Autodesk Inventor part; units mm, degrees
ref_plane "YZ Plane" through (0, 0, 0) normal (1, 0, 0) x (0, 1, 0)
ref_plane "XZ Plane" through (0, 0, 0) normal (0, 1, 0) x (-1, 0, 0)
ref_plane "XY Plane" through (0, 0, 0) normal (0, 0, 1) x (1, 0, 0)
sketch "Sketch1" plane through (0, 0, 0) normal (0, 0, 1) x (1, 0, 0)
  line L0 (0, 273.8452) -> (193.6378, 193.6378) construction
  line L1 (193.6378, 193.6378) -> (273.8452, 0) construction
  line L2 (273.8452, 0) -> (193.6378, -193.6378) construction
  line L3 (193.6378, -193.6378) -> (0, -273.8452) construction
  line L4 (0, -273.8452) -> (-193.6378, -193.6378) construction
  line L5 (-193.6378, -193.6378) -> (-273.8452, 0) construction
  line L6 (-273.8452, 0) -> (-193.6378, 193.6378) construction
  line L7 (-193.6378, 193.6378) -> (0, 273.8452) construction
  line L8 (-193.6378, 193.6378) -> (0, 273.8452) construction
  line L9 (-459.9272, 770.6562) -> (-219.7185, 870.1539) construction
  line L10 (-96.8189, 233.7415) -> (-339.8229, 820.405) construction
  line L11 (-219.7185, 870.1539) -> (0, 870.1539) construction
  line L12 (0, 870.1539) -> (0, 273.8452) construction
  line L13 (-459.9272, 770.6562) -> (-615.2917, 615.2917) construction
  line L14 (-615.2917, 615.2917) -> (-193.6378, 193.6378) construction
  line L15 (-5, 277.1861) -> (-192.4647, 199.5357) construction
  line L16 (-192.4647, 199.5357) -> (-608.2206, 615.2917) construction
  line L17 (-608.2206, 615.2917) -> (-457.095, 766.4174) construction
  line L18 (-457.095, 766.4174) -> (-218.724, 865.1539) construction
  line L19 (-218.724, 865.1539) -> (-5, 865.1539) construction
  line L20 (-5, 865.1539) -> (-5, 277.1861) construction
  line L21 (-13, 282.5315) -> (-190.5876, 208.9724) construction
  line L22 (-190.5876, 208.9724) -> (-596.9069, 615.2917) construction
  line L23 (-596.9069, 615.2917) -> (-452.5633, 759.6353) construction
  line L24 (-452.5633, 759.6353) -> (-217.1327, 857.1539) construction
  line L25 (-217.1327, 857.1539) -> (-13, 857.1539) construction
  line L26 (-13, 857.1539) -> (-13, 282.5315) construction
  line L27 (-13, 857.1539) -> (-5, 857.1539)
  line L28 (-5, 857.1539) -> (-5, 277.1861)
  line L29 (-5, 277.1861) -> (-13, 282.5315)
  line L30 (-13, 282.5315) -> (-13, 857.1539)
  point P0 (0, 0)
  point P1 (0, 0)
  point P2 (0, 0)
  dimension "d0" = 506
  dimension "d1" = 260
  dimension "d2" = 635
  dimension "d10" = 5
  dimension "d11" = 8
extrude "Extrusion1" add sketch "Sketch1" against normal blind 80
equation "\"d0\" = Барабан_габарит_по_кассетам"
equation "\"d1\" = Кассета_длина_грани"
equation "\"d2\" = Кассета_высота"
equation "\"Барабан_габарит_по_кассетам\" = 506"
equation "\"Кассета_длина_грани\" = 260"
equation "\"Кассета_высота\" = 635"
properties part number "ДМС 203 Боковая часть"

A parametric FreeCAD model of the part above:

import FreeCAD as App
import Part
import Sketcher
from FreeCAD import Vector
Q = App.Units.Quantity

doc = App.newDocument("Part")
params = doc.addObject("Spreadsheet::Sheet", "Params")
for row, (alias, value) in enumerate([
    ("sketch1_width", "8 mm"),
    ("pad1_length", "80 mm"),
], start=1):
    params.set(f"A{row}", alias)
    params.set(f"B{row}", "=" + value)
    params.setAlias(f"B{row}", alias)

body = doc.addObject("PartDesign::Body", "Body")

# Sketch on XY plane
sketch1 = body.newObject("Sketcher::SketchObject", "Sketch")
sketch1.AttachmentSupport = (doc.getObject("XY_Plane"), [""])
sketch1.MapMode = "FlatFace"
sketch1.addGeometry([
    Part.LineSegment(Vector(-5, 857, 0), Vector(-13, 857, 0)),
    Part.LineSegment(Vector(-13, 857, 0), Vector(-13, 283, 0)),
    Part.LineSegment(Vector(-13, 283, 0), Vector(-5, 277, 0)),
    Part.LineSegment(Vector(-5, 277, 0), Vector(-5, 857, 0)),
], False)
sketch1.addConstraint([
    Sketcher.Constraint("Coincident", 0, 2, 1, 1),
    Sketcher.Constraint("Coincident", 1, 2, 2, 1),
    Sketcher.Constraint("Coincident", 2, 2, 3, 1),
    Sketcher.Constraint("Coincident", 3, 2, 0, 1),
    Sketcher.Constraint("Horizontal", 0),
    Sketcher.Constraint("Vertical", 1),
    Sketcher.Constraint("Vertical", 3),
    Sketcher.Constraint("DistanceX", 0, 2, 0, 1, 8.0),
    Sketcher.Constraint("DistanceX", 2, 2, -1, 1, 5.0),
    Sketcher.Constraint("Angle", 2, Q("-33.7499 deg")),
    Sketcher.Constraint("DistanceY", 1, 2, 1, 1, 574.6224),
    Sketcher.Constraint("DistanceY", -1, 1, 0, 2, 857.154),
])
sketch1.setExpression("Constraints[7]", "Params.sketch1_width")
pad1 = body.newObject("PartDesign::Pad", "Pad")
pad1.Profile = sketch1
pad1.setExpression("Length", "Params.pad1_length")
pad1.Reversed = True

doc.recompute()
